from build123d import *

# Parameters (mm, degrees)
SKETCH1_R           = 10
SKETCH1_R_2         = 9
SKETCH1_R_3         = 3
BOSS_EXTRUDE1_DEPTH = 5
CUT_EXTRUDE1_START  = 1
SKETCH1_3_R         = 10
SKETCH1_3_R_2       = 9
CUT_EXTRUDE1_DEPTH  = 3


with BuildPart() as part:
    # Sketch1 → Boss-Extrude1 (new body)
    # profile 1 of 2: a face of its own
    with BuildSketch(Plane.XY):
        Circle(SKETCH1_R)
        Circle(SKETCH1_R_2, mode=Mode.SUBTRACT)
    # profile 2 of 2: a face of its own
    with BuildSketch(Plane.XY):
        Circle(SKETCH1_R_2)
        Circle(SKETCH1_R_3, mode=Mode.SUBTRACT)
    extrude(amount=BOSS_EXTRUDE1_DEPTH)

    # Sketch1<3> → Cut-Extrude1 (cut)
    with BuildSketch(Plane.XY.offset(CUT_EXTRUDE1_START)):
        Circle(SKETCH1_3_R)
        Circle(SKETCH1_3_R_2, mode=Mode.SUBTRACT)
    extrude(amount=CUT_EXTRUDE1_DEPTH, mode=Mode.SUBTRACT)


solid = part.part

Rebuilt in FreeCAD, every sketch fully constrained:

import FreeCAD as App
import Part
import Sketcher

doc = App.newDocument("Part")
body = doc.addObject("PartDesign::Body", "Body")

# Sketch on XY plane
sketch1 = body.newObject("Sketcher::SketchObject", "Sketch")
sketch1.AttachmentSupport = (doc.getObject("XY_Plane"), [""])
sketch1.MapMode = "FlatFace"
sketch1.addGeometry(Part.Circle(App.Vector(0, 0, 0), App.Vector(0, 0, 1), 10), False)
sketch1.addGeometry(Part.Circle(App.Vector(0, 0, 0), App.Vector(0, 0, 1), 3), False)
sketch1.addConstraint(Sketcher.Constraint("Coincident", 0, 3, -1, 1))
sketch1.addConstraint(Sketcher.Constraint("Coincident", 1, 3, -1, 1))
sketch1.addConstraint(Sketcher.Constraint("Diameter", 0, 20.0))
sketch1.addConstraint(Sketcher.Constraint("Diameter", 1, 6.0))
pad1 = body.newObject("PartDesign::Pad", "Pad")
pad1.Profile = sketch1
pad1.Length = 5

# Sketch on XY plane
sketch2 = body.newObject("Sketcher::SketchObject", "Sketch001")
sketch2.AttachmentSupport = (doc.getObject("XY_Plane"), [""])
sketch2.MapMode = "FlatFace"
sketch2.AttachmentOffset = App.Placement(App.Vector(0, 0, 1), App.Rotation())
sketch2.addGeometry(Part.Circle(App.Vector(0, 0, 0), App.Vector(0, 0, 1), 10), False)
sketch2.addGeometry(Part.Circle(App.Vector(0, 0, 0), App.Vector(0, 0, 1), 9), False)
sketch2.addConstraint(Sketcher.Constraint("Coincident", 0, 3, -1, 1))
sketch2.addConstraint(Sketcher.Constraint("Coincident", 1, 3, -1, 1))
sketch2.addConstraint(Sketcher.Constraint("Diameter", 0, 20.0))
sketch2.addConstraint(Sketcher.Constraint("Diameter", 1, 18.0))
pocket1 = body.newObject("PartDesign::Pocket", "Pocket")
pocket1.Profile = sketch2
pocket1.Length = 3
pocket1.Reversed = True

doc.recompute()
